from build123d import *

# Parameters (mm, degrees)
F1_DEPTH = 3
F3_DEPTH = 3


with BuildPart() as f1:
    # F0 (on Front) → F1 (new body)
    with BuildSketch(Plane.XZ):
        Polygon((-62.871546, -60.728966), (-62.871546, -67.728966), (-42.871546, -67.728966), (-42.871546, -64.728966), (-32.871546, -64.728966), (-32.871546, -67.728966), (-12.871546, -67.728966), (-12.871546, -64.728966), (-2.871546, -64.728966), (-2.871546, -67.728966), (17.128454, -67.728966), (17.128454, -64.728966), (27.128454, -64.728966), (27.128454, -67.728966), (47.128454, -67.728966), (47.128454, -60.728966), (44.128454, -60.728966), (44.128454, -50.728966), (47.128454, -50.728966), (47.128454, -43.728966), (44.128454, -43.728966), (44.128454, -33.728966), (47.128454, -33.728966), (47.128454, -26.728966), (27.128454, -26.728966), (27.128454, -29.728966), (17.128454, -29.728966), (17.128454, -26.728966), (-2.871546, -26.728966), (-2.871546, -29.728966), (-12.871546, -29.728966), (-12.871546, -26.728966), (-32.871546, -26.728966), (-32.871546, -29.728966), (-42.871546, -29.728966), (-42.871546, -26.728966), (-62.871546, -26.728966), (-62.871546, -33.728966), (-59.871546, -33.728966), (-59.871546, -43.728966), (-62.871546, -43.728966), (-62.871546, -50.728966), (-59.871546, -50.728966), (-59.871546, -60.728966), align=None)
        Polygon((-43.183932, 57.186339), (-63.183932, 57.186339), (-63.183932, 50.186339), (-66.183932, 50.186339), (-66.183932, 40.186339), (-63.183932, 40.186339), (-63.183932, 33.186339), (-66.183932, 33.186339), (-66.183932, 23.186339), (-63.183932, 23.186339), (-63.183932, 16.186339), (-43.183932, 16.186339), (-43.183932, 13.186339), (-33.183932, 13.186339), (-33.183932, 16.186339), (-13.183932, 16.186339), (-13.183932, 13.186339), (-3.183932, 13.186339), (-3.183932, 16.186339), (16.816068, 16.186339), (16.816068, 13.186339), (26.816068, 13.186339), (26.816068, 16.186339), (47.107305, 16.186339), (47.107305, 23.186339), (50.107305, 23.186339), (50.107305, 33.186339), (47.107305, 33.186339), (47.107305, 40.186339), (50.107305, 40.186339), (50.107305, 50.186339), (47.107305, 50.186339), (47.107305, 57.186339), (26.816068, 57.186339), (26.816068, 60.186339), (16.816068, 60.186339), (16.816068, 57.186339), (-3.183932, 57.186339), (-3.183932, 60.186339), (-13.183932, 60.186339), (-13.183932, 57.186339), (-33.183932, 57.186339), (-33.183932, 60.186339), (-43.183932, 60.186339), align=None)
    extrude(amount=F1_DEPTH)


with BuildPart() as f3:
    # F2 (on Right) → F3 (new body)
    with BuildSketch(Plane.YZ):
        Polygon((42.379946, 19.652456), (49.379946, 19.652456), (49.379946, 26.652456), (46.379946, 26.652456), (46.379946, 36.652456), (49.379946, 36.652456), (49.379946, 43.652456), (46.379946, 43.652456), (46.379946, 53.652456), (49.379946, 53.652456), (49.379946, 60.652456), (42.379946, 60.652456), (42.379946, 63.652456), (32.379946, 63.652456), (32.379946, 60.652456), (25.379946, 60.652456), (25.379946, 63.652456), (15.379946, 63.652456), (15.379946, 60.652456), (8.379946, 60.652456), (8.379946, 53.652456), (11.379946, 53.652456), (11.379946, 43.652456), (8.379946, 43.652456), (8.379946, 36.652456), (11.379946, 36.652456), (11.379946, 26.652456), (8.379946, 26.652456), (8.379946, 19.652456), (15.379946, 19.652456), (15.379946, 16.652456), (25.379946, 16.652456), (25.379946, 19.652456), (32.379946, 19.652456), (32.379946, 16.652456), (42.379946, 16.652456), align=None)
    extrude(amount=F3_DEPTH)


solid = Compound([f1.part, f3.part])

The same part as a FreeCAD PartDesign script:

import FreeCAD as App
import Part
import Sketcher
Q = App.Units.Quantity

doc = App.newDocument("Part")
params = doc.addObject("Spreadsheet::Sheet", "Params")
for row, (alias, value) in enumerate([
    ("sketch1_width", "20 mm"),
    ("sketch1_width2", "10 mm"),
    ("sketch1_width3", "3 mm"),
    ("sketch1_height", "7 mm"),
    ("pad1_length", "3 mm"),
    ("sketch2_width", "7 mm"),
    ("sketch2_width2", "3 mm"),
    ("sketch2_width3", "10 mm"),
    ("pad2_length", "3 mm"),
], start=1):
    params.set(f"A{row}", alias)
    params.set(f"B{row}", "=" + value)
    params.setAlias(f"B{row}", alias)

body = doc.addObject("PartDesign::Body", "Body")
body.AllowCompound = True

# Sketch on XZ plane
sketch1 = body.newObject("Sketcher::SketchObject", "Sketch")
sketch1.AttachmentSupport = (doc.getObject("XZ_Plane"), [""])
sketch1.MapMode = "FlatFace"
sketch1.addGeometry(Part.LineSegment(App.Vector(-62.9, -60.7, 0), App.Vector(-62.9, -67.7, 0)), False)
sketch1.addGeometry(Part.LineSegment(App.Vector(-62.9, -67.7, 0), App.Vector(-42.9, -67.7, 0)), False)
sketch1.addGeometry(Part.LineSegment(App.Vector(-42.9, -67.7, 0), App.Vector(-42.9, -64.7, 0)), False)
sketch1.addGeometry(Part.LineSegment(App.Vector(-42.9, -64.7, 0), App.Vector(-32.9, -64.7, 0)), False)
sketch1.addGeometry(Part.LineSegment(App.Vector(-32.9, -64.7, 0), App.Vector(-32.9, -67.7, 0)), False)
sketch1.addGeometry(Part.LineSegment(App.Vector(-32.9, -67.7, 0), App.Vector(-12.9, -67.7, 0)), False)
sketch1.addGeometry(Part.LineSegment(App.Vector(-12.9, -67.7, 0), App.Vector(-12.9, -64.7, 0)), False)
sketch1.addGeometry(Part.LineSegment(App.Vector(-12.9, -64.7, 0), App.Vector(-2.9, -64.7, 0)), False)
sketch1.addGeometry(Part.LineSegment(App.Vector(-2.9, -64.7, 0), App.Vector(-2.9, -67.7, 0)), False)
sketch1.addGeometry(Part.LineSegment(App.Vector(-2.9, -67.7, 0), App.Vector(17.1, -67.7, 0)), False)
sketch1.addGeometry(Part.LineSegment(App.Vector(17.1, -67.7, 0), App.Vector(17.1, -64.7, 0)), False)
sketch1.addGeometry(Part.LineSegment(App.Vector(17.1, -64.7, 0), App.Vector(27.1, -64.7, 0)), False)
sketch1.addGeometry(Part.LineSegment(App.Vector(27.1, -64.7, 0), App.Vector(27.1, -67.7, 0)), False)
sketch1.addGeometry(Part.LineSegment(App.Vector(27.1, -67.7, 0), App.Vector(47.1, -67.7, 0)), False)
sketch1.addGeometry(Part.LineSegment(App.Vector(47.1, -67.7, 0), App.Vector(47.1, -60.7, 0)), False)
sketch1.addGeometry(Part.LineSegment(App.Vector(47.1, -60.7, 0), App.Vector(44.1, -60.7, 0)), False)
sketch1.addGeometry(Part.LineSegment(App.Vector(44.1, -60.7, 0), App.Vector(44.1, -50.7, 0)), False)
sketch1.addGeometry(Part.LineSegment(App.Vector(44.1, -50.7, 0), App.Vector(47.1, -50.7, 0)), False)
sketch1.addGeometry(Part.LineSegment(App.Vector(47.1, -50.7, 0), App.Vector(47.1, -43.7, 0)), False)
sketch1.addGeometry(Part.LineSegment(App.Vector(47.1, -43.7, 0), App.Vector(44.1, -43.7, 0)), False)
sketch1.addGeometry(Part.LineSegment(App.Vector(44.1, -43.7, 0), App.Vector(44.1, -33.7, 0)), False)
sketch1.addGeometry(Part.LineSegment(App.Vector(44.1, -33.7, 0), App.Vector(47.1, -33.7, 0)), False)
sketch1.addGeometry(Part.LineSegment(App.Vector(47.1, -33.7, 0), App.Vector(47.1, -26.7, 0)), False)
sketch1.addGeometry(Part.LineSegment(App.Vector(47.1, -26.7, 0), App.Vector(27.1, -26.7, 0)), False)
sketch1.addGeometry(Part.LineSegment(App.Vector(27.1, -26.7, 0), App.Vector(27.1, -29.7, 0)), False)
sketch1.addGeometry(Part.LineSegment(App.Vector(27.1, -29.7, 0), App.Vector(17.1, -29.7, 0)), False)
sketch1.addGeometry(Part.LineSegment(App.Vector(17.1, -29.7, 0), App.Vector(17.1, -26.7, 0)), False)
sketch1.addGeometry(Part.LineSegment(App.Vector(17.1, -26.7, 0), App.Vector(-2.9, -26.7, 0)), False)
sketch1.addGeometry(Part.LineSegment(App.Vector(-2.9, -26.7, 0), App.Vector(-2.9, -29.7, 0)), False)
sketch1.addGeometry(Part.LineSegment(App.Vector(-2.9, -29.7, 0), App.Vector(-12.9, -29.7, 0)), False)
sketch1.addGeometry(Part.LineSegment(App.Vector(-12.9, -29.7, 0), App.Vector(-12.9, -26.7, 0)), False)
sketch1.addGeometry(Part.LineSegment(App.Vector(-12.9, -26.7, 0), App.Vector(-32.9, -26.7, 0)), False)
sketch1.addGeometry(Part.LineSegment(App.Vector(-32.9, -26.7, 0), App.Vector(-32.9, -29.7, 0)), False)
sketch1.addGeometry(Part.LineSegment(App.Vector(-32.9, -29.7, 0), App.Vector(-42.9, -29.7, 0)), False)
sketch1.addGeometry(Part.LineSegment(App.Vector(-42.9, -29.7, 0), App.Vector(-42.9, -26.7, 0)), False)
sketch1.addGeometry(Part.LineSegment(App.Vector(-42.9, -26.7, 0), App.Vector(-62.9, -26.7, 0)), False)
sketch1.addGeometry(Part.LineSegment(App.Vector(-62.9, -26.7, 0), App.Vector(-62.9, -33.7, 0)), False)
sketch1.addGeometry(Part.LineSegment(App.Vector(-62.9, -33.7, 0), App.Vector(-59.9, -33.7, 0)), False)
sketch1.addGeometry(Part.LineSegment(App.Vector(-59.9, -33.7, 0), App.Vector(-59.9, -43.7, 0)), False)
sketch1.addGeometry(Part.LineSegment(App.Vector(-59.9, -43.7, 0), App.Vector(-62.9, -43.7, 0)), False)
sketch1.addGeometry(Part.LineSegment(App.Vector(-62.9, -43.7, 0), App.Vector(-62.9, -50.7, 0)), False)
sketch1.addGeometry(Part.LineSegment(App.Vector(-62.9, -50.7, 0), App.Vector(-59.9, -50.7, 0)), False)
sketch1.addGeometry(Part.LineSegment(App.Vector(-59.9, -50.7, 0), App.Vector(-59.9, -60.7, 0)), False)
sketch1.addGeometry(Part.LineSegment(App.Vector(-59.9, -60.7, 0), App.Vector(-62.9, -60.7, 0)), False)
sketch1.addGeometry(Part.LineSegment(App.Vector(-43.2, 57.2, 0), App.Vector(-63.2, 57.2, 0)), False)
sketch1.addGeometry(Part.LineSegment(App.Vector(-63.2, 57.2, 0), App.Vector(-63.2, 50.2, 0)), False)
sketch1.addGeometry(Part.LineSegment(App.Vector(-63.2, 50.2, 0), App.Vector(-66.2, 50.2, 0)), False)
sketch1.addGeometry(Part.LineSegment(App.Vector(-66.2, 50.2, 0), App.Vector(-66.2, 40.2, 0)), False)
sketch1.addGeometry(Part.LineSegment(App.Vector(-66.2, 40.2, 0), App.Vector(-63.2, 40.2, 0)), False)
sketch1.addGeometry(Part.LineSegment(App.Vector(-63.2, 40.2, 0), App.Vector(-63.2, 33.2, 0)), False)
sketch1.addGeometry(Part.LineSegment(App.Vector(-63.2, 33.2, 0), App.Vector(-66.2, 33.2, 0)), False)
sketch1.addGeometry(Part.LineSegment(App.Vector(-66.2, 33.2, 0), App.Vector(-66.2, 23.2, 0)), False)
sketch1.addGeometry(Part.LineSegment(App.Vector(-66.2, 23.2, 0), App.Vector(-63.2, 23.2, 0)), False)
sketch1.addGeometry(Part.LineSegment(App.Vector(-63.2, 23.2, 0), App.Vector(-63.2, 16.2, 0)), False)
sketch1.addGeometry(Part.LineSegment(App.Vector(-63.2, 16.2, 0), App.Vector(-43.2, 16.2, 0)), False)
sketch1.addGeometry(Part.LineSegment(App.Vector(-43.2, 16.2, 0), App.Vector(-43.2, 13.2, 0)), False)
sketch1.addGeometry(Part.LineSegment(App.Vector(-43.2, 13.2, 0), App.Vector(-33.2, 13.2, 0)), False)
sketch1.addGeometry(Part.LineSegment(App.Vector(-33.2, 13.2, 0), App.Vector(-33.2, 16.2, 0)), False)
sketch1.addGeometry(Part.LineSegment(App.Vector(-33.2, 16.2, 0), App.Vector(-13.2, 16.2, 0)), False)
sketch1.addGeometry(Part.LineSegment(App.Vector(-13.2, 16.2, 0), App.Vector(-13.2, 13.2, 0)), False)
sketch1.addGeometry(Part.LineSegment(App.Vector(-13.2, 13.2, 0), App.Vector(-3.2, 13.2, 0)), False)
sketch1.addGeometry(Part.LineSegment(App.Vector(-3.2, 13.2, 0), App.Vector(-3.2, 16.2, 0)), False)
sketch1.addGeometry(Part.LineSegment(App.Vector(-3.2, 16.2, 0), App.Vector(16.8, 16.2, 0)), False)
sketch1.addGeometry(Part.LineSegment(App.Vector(16.8, 16.2, 0), App.Vector(16.8, 13.2, 0)), False)
sketch1.addGeometry(Part.LineSegment(App.Vector(16.8, 13.2, 0), App.Vector(26.8, 13.2, 0)), False)
sketch1.addGeometry(Part.LineSegment(App.Vector(26.8, 13.2, 0), App.Vector(26.8, 16.2, 0)), False)
sketch1.addGeometry(Part.LineSegment(App.Vector(26.8, 16.2, 0), App.Vector(47.1, 16.2, 0)), False)
sketch1.addGeometry(Part.LineSegment(App.Vector(47.1, 16.2, 0), App.Vector(47.1, 23.2, 0)), False)
sketch1.addGeometry(Part.LineSegment(App.Vector(47.1, 23.2, 0), App.Vector(50.1, 23.2, 0)), False)
sketch1.addGeometry(Part.LineSegment(App.Vector(50.1, 23.2, 0), App.Vector(50.1, 33.2, 0)), False)
sketch1.addGeometry(Part.LineSegment(App.Vector(50.1, 33.2, 0), App.Vector(47.1, 33.2, 0)), False)
sketch1.addGeometry(Part.LineSegment(App.Vector(47.1, 33.2, 0), App.Vector(47.1, 40.2, 0)), False)
sketch1.addGeometry(Part.LineSegment(App.Vector(47.1, 40.2, 0), App.Vector(50.1, 40.2, 0)), False)
sketch1.addGeometry(Part.LineSegment(App.Vector(50.1, 40.2, 0), App.Vector(50.1, 50.2, 0)), False)
sketch1.addGeometry(Part.LineSegment(App.Vector(50.1, 50.2, 0), App.Vector(47.1, 50.2, 0)), False)
sketch1.addGeometry(Part.LineSegment(App.Vector(47.1, 50.2, 0), App.Vector(47.1, 57.2, 0)), False)
sketch1.addGeometry(Part.LineSegment(App.Vector(47.1, 57.2, 0), App.Vector(26.8, 57.2, 0)), False)
sketch1.addGeometry(Part.LineSegment(App.Vector(26.8, 57.2, 0), App.Vector(26.8, 60.2, 0)), False)
sketch1.addGeometry(Part.LineSegment(App.Vector(26.8, 60.2, 0), App.Vector(16.8, 60.2, 0)), False)
sketch1.addGeometry(Part.LineSegment(App.Vector(16.8, 60.2, 0), App.Vector(16.8, 57.2, 0)), False)
sketch1.addGeometry(Part.LineSegment(App.Vector(16.8, 57.2, 0), App.Vector(-3.2, 57.2, 0)), False)
sketch1.addGeometry(Part.LineSegment(App.Vector(-3.2, 57.2, 0), App.Vector(-3.2, 60.2, 0)), False)
sketch1.addGeometry(Part.LineSegment(App.Vector(-3.2, 60.2, 0), App.Vector(-13.2, 60.2, 0)), False)
sketch1.addGeometry(Part.LineSegment(App.Vector(-13.2, 60.2, 0), App.Vector(-13.2, 57.2, 0)), False)
sketch1.addGeometry(Part.LineSegment(App.Vector(-13.2, 57.2, 0), App.Vector(-33.2, 57.2, 0)), False)
sketch1.addGeometry(Part.LineSegment(App.Vector(-33.2, 57.2, 0), App.Vector(-33.2, 60.2, 0)), False)
sketch1.addGeometry(Part.LineSegment(App.Vector(-33.2, 60.2, 0), App.Vector(-43.2, 60.2, 0)), False)
sketch1.addGeometry(Part.LineSegment(App.Vector(-43.2, 60.2, 0), App.Vector(-43.2, 57.2, 0)), False)
sketch1.addConstraint(Sketcher.Constraint("Coincident", 0, 2, 1, 1))
sketch1.addConstraint(Sketcher.Constraint("Coincident", 1, 2, 2, 1))
sketch1.addConstraint(Sketcher.Constraint("Coincident", 2, 2, 3, 1))
sketch1.addConstraint(Sketcher.Constraint("Coincident", 3, 2, 4, 1))
sketch1.addConstraint(Sketcher.Constraint("Coincident", 4, 2, 5, 1))
sketch1.addConstraint(Sketcher.Constraint("Coincident", 5, 2, 6, 1))
sketch1.addConstraint(Sketcher.Constraint("Coincident", 6, 2, 7, 1))
sketch1.addConstraint(Sketcher.Constraint("Coincident", 7, 2, 8, 1))
sketch1.addConstraint(Sketcher.Constraint("Coincident", 8, 2, 9, 1))
sketch1.addConstraint(Sketcher.Constraint("Coincident", 9, 2, 10, 1))
sketch1.addConstraint(Sketcher.Constraint("Coincident", 10, 2, 11, 1))
sketch1.addConstraint(Sketcher.Constraint("Coincident", 11, 2, 12, 1))
sketch1.addConstraint(Sketcher.Constraint("Coincident", 12, 2, 13, 1))
sketch1.addConstraint(Sketcher.Constraint("Coincident", 13, 2, 14, 1))
sketch1.addConstraint(Sketcher.Constraint("Coincident", 14, 2, 15, 1))
sketch1.addConstraint(Sketcher.Constraint("Coincident", 15, 2, 16, 1))
sketch1.addConstraint(Sketcher.Constraint("Coincident", 16, 2, 17, 1))
sketch1.addConstraint(Sketcher.Constraint("Coincident", 17, 2, 18, 1))
sketch1.addConstraint(Sketcher.Constraint("Coincident", 18, 2, 19, 1))
sketch1.addConstraint(Sketcher.Constraint("Coincident", 19, 2, 20, 1))
sketch1.addConstraint(Sketcher.Constraint("Coincident", 20, 2, 21, 1))
sketch1.addConstraint(Sketcher.Constraint("Coincident", 21, 2, 22, 1))
sketch1.addConstraint(Sketcher.Constraint("Coincident", 22, 2, 23, 1))
sketch1.addConstraint(Sketcher.Constraint("Coincident", 23, 2, 24, 1))
sketch1.addConstraint(Sketcher.Constraint("Coincident", 24, 2, 25, 1))
sketch1.addConstraint(Sketcher.Constraint("Coincident", 25, 2, 26, 1))
sketch1.addConstraint(Sketcher.Constraint("Coincident", 26, 2, 27, 1))
sketch1.addConstraint(Sketcher.Constraint("Coincident", 27, 2, 28, 1))
sketch1.addConstraint(Sketcher.Constraint("Coincident", 28, 2, 29, 1))
sketch1.addConstraint(Sketcher.Constraint("Coincident", 29, 2, 30, 1))
sketch1.addConstraint(Sketcher.Constraint("Coincident", 30, 2, 31, 1))
sketch1.addConstraint(Sketcher.Constraint("Coincident", 31, 2, 32, 1))
sketch1.addConstraint(Sketcher.Constraint("Coincident", 32, 2, 33, 1))
sketch1.addConstraint(Sketcher.Constraint("Coincident", 33, 2, 34, 1))
sketch1.addConstraint(Sketcher.Constraint("Coincident", 34, 2, 35, 1))
sketch1.addConstraint(Sketcher.Constraint("Coincident", 35, 2, 36, 1))
sketch1.addConstraint(Sketcher.Constraint("Coincident", 36, 2, 37, 1))
sketch1.addConstraint(Sketcher.Constraint("Coincident", 37, 2, 38, 1))
sketch1.addConstraint(Sketcher.Constraint("Coincident", 38, 2, 39, 1))
sketch1.addConstraint(Sketcher.Constraint("Coincident", 39, 2, 40, 1))
sketch1.addConstraint(Sketcher.Constraint("Coincident", 40, 2, 41, 1))
sketch1.addConstraint(Sketcher.Constraint("Coincident", 41, 2, 42, 1))
sketch1.addConstraint(Sketcher.Constraint("Coincident", 42, 2, 43, 1))
sketch1.addConstraint(Sketcher.Constraint("Coincident", 43, 2, 0, 1))
sketch1.addConstraint(Sketcher.Constraint("Coincident", 44, 2, 45, 1))
sketch1.addConstraint(Sketcher.Constraint("Coincident", 45, 2, 46, 1))
sketch1.addConstraint(Sketcher.Constraint("Coincident", 46, 2, 47, 1))
sketch1.addConstraint(Sketcher.Constraint("Coincident", 47, 2, 48, 1))
sketch1.addConstraint(Sketcher.Constraint("Coincident", 48, 2, 49, 1))
sketch1.addConstraint(Sketcher.Constraint("Coincident", 49, 2, 50, 1))
sketch1.addConstraint(Sketcher.Constraint("Coincident", 50, 2, 51, 1))
sketch1.addConstraint(Sketcher.Constraint("Coincident", 51, 2, 52, 1))
sketch1.addConstraint(Sketcher.Constraint("Coincident", 52, 2, 53, 1))
sketch1.addConstraint(Sketcher.Constraint("Coincident", 53, 2, 54, 1))
sketch1.addConstraint(Sketcher.Constraint("Coincident", 54, 2, 55, 1))
sketch1.addConstraint(Sketcher.Constraint("Coincident", 55, 2, 56, 1))
sketch1.addConstraint(Sketcher.Constraint("Coincident", 56, 2, 57, 1))
sketch1.addConstraint(Sketcher.Constraint("Coincident", 57, 2, 58, 1))
sketch1.addConstraint(Sketcher.Constraint("Coincident", 58, 2, 59, 1))
sketch1.addConstraint(Sketcher.Constraint("Coincident", 59, 2, 60, 1))
sketch1.addConstraint(Sketcher.Constraint("Coincident", 60, 2, 61, 1))
sketch1.addConstraint(Sketcher.Constraint("Coincident", 61, 2, 62, 1))
sketch1.addConstraint(Sketcher.Constraint("Coincident", 62, 2, 63, 1))
sketch1.addConstraint(Sketcher.Constraint("Coincident", 63, 2, 64, 1))
sketch1.addConstraint(Sketcher.Constraint("Coincident", 64, 2, 65, 1))
sketch1.addConstraint(Sketcher.Constraint("Coincident", 65, 2, 66, 1))
sketch1.addConstraint(Sketcher.Constraint("Coincident", 66, 2, 67, 1))
sketch1.addConstraint(Sketcher.Constraint("Coincident", 67, 2, 68, 1))
sketch1.addConstraint(Sketcher.Constraint("Coincident", 68, 2, 69, 1))
sketch1.addConstraint(Sketcher.Constraint("Coincident", 69, 2, 70, 1))
sketch1.addConstraint(Sketcher.Constraint("Coincident", 70, 2, 71, 1))
sketch1.addConstraint(Sketcher.Constraint("Coincident", 71, 2, 72, 1))
sketch1.addConstraint(Sketcher.Constraint("Coincident", 72, 2, 73, 1))
sketch1.addConstraint(Sketcher.Constraint("Coincident", 73, 2, 74, 1))
sketch1.addConstraint(Sketcher.Constraint("Coincident", 74, 2, 75, 1))
sketch1.addConstraint(Sketcher.Constraint("Coincident", 75, 2, 76, 1))
sketch1.addConstraint(Sketcher.Constraint("Coincident", 76, 2, 77, 1))
sketch1.addConstraint(Sketcher.Constraint("Coincident", 77, 2, 78, 1))
sketch1.addConstraint(Sketcher.Constraint("Coincident", 78, 2, 79, 1))
sketch1.addConstraint(Sketcher.Constraint("Coincident", 79, 2, 80, 1))
sketch1.addConstraint(Sketcher.Constraint("Coincident", 80, 2, 81, 1))
sketch1.addConstraint(Sketcher.Constraint("Coincident", 81, 2, 82, 1))
sketch1.addConstraint(Sketcher.Constraint("Coincident", 82, 2, 83, 1))
sketch1.addConstraint(Sketcher.Constraint("Coincident", 83, 2, 84, 1))
sketch1.addConstraint(Sketcher.Constraint("Coincident", 84, 2, 85, 1))
sketch1.addConstraint(Sketcher.Constraint("Coincident", 85, 2, 86, 1))
sketch1.addConstraint(Sketcher.Constraint("Coincident", 86, 2, 87, 1))
sketch1.addConstraint(Sketcher.Constraint("Coincident", 87, 2, 44, 1))
sketch1.addConstraint(Sketcher.Constraint("Vertical", 0))
sketch1.addConstraint(Sketcher.Constraint("Horizontal", 1))
sketch1.addConstraint(Sketcher.Constraint("Vertical", 2))
sketch1.addConstraint(Sketcher.Constraint("Horizontal", 3))
sketch1.addConstraint(Sketcher.Constraint("Vertical", 4))
sketch1.addConstraint(Sketcher.Constraint("Horizontal", 5))
sketch1.addConstraint(Sketcher.Constraint("Vertical", 6))
sketch1.addConstraint(Sketcher.Constraint("Horizontal", 7))
sketch1.addConstraint(Sketcher.Constraint("Vertical", 8))
sketch1.addConstraint(Sketcher.Constraint("Horizontal", 9))
sketch1.addConstraint(Sketcher.Constraint("Vertical", 10))
sketch1.addConstraint(Sketcher.Constraint("Horizontal", 11))
sketch1.addConstraint(Sketcher.Constraint("Vertical", 12))
sketch1.addConstraint(Sketcher.Constraint("Horizontal", 13))
sketch1.addConstraint(Sketcher.Constraint("Vertical", 14))
sketch1.addConstraint(Sketcher.Constraint("Horizontal", 15))
sketch1.addConstraint(Sketcher.Constraint("Vertical", 16))
sketch1.addConstraint(Sketcher.Constraint("Horizontal", 17))
sketch1.addConstraint(Sketcher.Constraint("Vertical", 18))
sketch1.addConstraint(Sketcher.Constraint("Horizontal", 19))
sketch1.addConstraint(Sketcher.Constraint("Vertical", 20))
sketch1.addConstraint(Sketcher.Constraint("Horizontal", 21))
sketch1.addConstraint(Sketcher.Constraint("Vertical", 22))
sketch1.addConstraint(Sketcher.Constraint("Horizontal", 23))
sketch1.addConstraint(Sketcher.Constraint("Vertical", 24))
sketch1.addConstraint(Sketcher.Constraint("Horizontal", 25))
sketch1.addConstraint(Sketcher.Constraint("Vertical", 26))
sketch1.addConstraint(Sketcher.Constraint("Horizontal", 27))
sketch1.addConstraint(Sketcher.Constraint("Vertical", 28))
sketch1.addConstraint(Sketcher.Constraint("Horizontal", 29))
sketch1.addConstraint(Sketcher.Constraint("Vertical", 30))
sketch1.addConstraint(Sketcher.Constraint("Horizontal", 31))
sketch1.addConstraint(Sketcher.Constraint("Vertical", 32))
sketch1.addConstraint(Sketcher.Constraint("Horizontal", 33))
sketch1.addConstraint(Sketcher.Constraint("Vertical", 34))
sketch1.addConstraint(Sketcher.Constraint("Horizontal", 35))
sketch1.addConstraint(Sketcher.Constraint("Vertical", 36))
sketch1.addConstraint(Sketcher.Constraint("Horizontal", 37))
sketch1.addConstraint(Sketcher.Constraint("Vertical", 38))
sketch1.addConstraint(Sketcher.Constraint("Horizontal", 39))
sketch1.addConstraint(Sketcher.Constraint("Vertical", 40))
sketch1.addConstraint(Sketcher.Constraint("Horizontal", 41))
sketch1.addConstraint(Sketcher.Constraint("Vertical", 42))
sketch1.addConstraint(Sketcher.Constraint("Horizontal", 43))
sketch1.addConstraint(Sketcher.Constraint("Horizontal", 44))
sketch1.addConstraint(Sketcher.Constraint("Vertical", 45))
sketch1.addConstraint(Sketcher.Constraint("Horizontal", 46))
sketch1.addConstraint(Sketcher.Constraint("Vertical", 47))
sketch1.addConstraint(Sketcher.Constraint("Horizontal", 48))
sketch1.addConstraint(Sketcher.Constraint("Vertical", 49))
sketch1.addConstraint(Sketcher.Constraint("Horizontal", 50))
sketch1.addConstraint(Sketcher.Constraint("Vertical", 51))
sketch1.addConstraint(Sketcher.Constraint("Horizontal", 52))
sketch1.addConstraint(Sketcher.Constraint("Vertical", 53))
sketch1.addConstraint(Sketcher.Constraint("Horizontal", 54))
sketch1.addConstraint(Sketcher.Constraint("Vertical", 55))
sketch1.addConstraint(Sketcher.Constraint("Horizontal", 56))
sketch1.addConstraint(Sketcher.Constraint("Vertical", 57))
sketch1.addConstraint(Sketcher.Constraint("Horizontal", 58))
sketch1.addConstraint(Sketcher.Constraint("Vertical", 59))
sketch1.addConstraint(Sketcher.Constraint("Horizontal", 60))
sketch1.addConstraint(Sketcher.Constraint("Vertical", 61))
sketch1.addConstraint(Sketcher.Constraint("Horizontal", 62))
sketch1.addConstraint(Sketcher.Constraint("Vertical", 63))
sketch1.addConstraint(Sketcher.Constraint("Horizontal", 64))
sketch1.addConstraint(Sketcher.Constraint("Vertical", 65))
sketch1.addConstraint(Sketcher.Constraint("Horizontal", 66))
sketch1.addConstraint(Sketcher.Constraint("Vertical", 67))
sketch1.addConstraint(Sketcher.Constraint("Horizontal", 68))
sketch1.addConstraint(Sketcher.Constraint("Vertical", 69))
sketch1.addConstraint(Sketcher.Constraint("Horizontal", 70))
sketch1.addConstraint(Sketcher.Constraint("Vertical", 71))
sketch1.addConstraint(Sketcher.Constraint("Horizontal", 72))
sketch1.addConstraint(Sketcher.Constraint("Vertical", 73))
sketch1.addConstraint(Sketcher.Constraint("Horizontal", 74))
sketch1.addConstraint(Sketcher.Constraint("Vertical", 75))
sketch1.addConstraint(Sketcher.Constraint("Horizontal", 76))
sketch1.addConstraint(Sketcher.Constraint("Vertical", 77))
sketch1.addConstraint(Sketcher.Constraint("Horizontal", 78))
sketch1.addConstraint(Sketcher.Constraint("Vertical", 79))
sketch1.addConstraint(Sketcher.Constraint("Horizontal", 80))
sketch1.addConstraint(Sketcher.Constraint("Vertical", 81))
sketch1.addConstraint(Sketcher.Constraint("Horizontal", 82))
sketch1.addConstraint(Sketcher.Constraint("Vertical", 83))
sketch1.addConstraint(Sketcher.Constraint("Horizontal", 84))
sketch1.addConstraint(Sketcher.Constraint("Vertical", 85))
sketch1.addConstraint(Sketcher.Constraint("Horizontal", 86))
sketch1.addConstraint(Sketcher.Constraint("Vertical", 87))
sketch1.addConstraint(Sketcher.Constraint("Horizontal", 1, 2, 4, 2))
sketch1.addConstraint(Sketcher.Constraint("Horizontal", 3, 2, 6, 2))
sketch1.addConstraint(Sketcher.Constraint("Horizontal", 5, 2, 8, 2))
sketch1.addConstraint(Sketcher.Constraint("Horizontal", 7, 2, 10, 2))
sketch1.addConstraint(Sketcher.Constraint("Horizontal", 9, 2, 12, 2))
sketch1.addConstraint(Sketcher.Constraint("Horizontal", 23, 2, 26, 2))
sketch1.addConstraint(Sketcher.Constraint("Horizontal", 25, 2, 28, 2))
sketch1.addConstraint(Sketcher.Constraint("Horizontal", 27, 2, 30, 2))
sketch1.addConstraint(Sketcher.Constraint("Horizontal", 29, 2, 32, 2))
sketch1.addConstraint(Sketcher.Constraint("Horizontal", 31, 2, 34, 2))
sketch1.addConstraint(Sketcher.Constraint("Horizontal", 21, 2, 36, 2))
sketch1.addConstraint(Sketcher.Constraint("Horizontal", 19, 2, 38, 2))
sketch1.addConstraint(Sketcher.Constraint("Horizontal", 17, 2, 40, 2))
sketch1.addConstraint(Sketcher.Constraint("Horizontal", 15, 2, 42, 2))
sketch1.addConstraint(Sketcher.Constraint("Horizontal", 54, 2, 57, 2))
sketch1.addConstraint(Sketcher.Constraint("Horizontal", 56, 2, 59, 2))
sketch1.addConstraint(Sketcher.Constraint("Horizontal", 58, 2, 61, 2))
sketch1.addConstraint(Sketcher.Constraint("Horizontal", 60, 2, 63, 2))
sketch1.addConstraint(Sketcher.Constraint("Horizontal", 62, 2, 65, 2))
sketch1.addConstraint(Sketcher.Constraint("Horizontal", 52, 2, 67, 2))
sketch1.addConstraint(Sketcher.Constraint("Horizontal", 50, 2, 69, 2))
sketch1.addConstraint(Sketcher.Constraint("Horizontal", 48, 2, 71, 2))
sketch1.addConstraint(Sketcher.Constraint("Horizontal", 46, 2, 73, 2))
sketch1.addConstraint(Sketcher.Constraint("Horizontal", 44, 2, 75, 2))
sketch1.addConstraint(Sketcher.Constraint("Horizontal", 76, 2, 79, 2))
sketch1.addConstraint(Sketcher.Constraint("Horizontal", 78, 2, 81, 2))
sketch1.addConstraint(Sketcher.Constraint("Horizontal", 80, 2, 83, 2))
sketch1.addConstraint(Sketcher.Constraint("Horizontal", 82, 2, 85, 2))
sketch1.addConstraint(Sketcher.Constraint("Vertical", 14, 2, 17, 2))
sketch1.addConstraint(Sketcher.Constraint("Vertical", 16, 2, 19, 2))
sketch1.addConstraint(Sketcher.Constraint("Vertical", 18, 2, 21, 2))
sketch1.addConstraint(Sketcher.Constraint("Vertical", 12, 2, 23, 2))
sketch1.addConstraint(Sketcher.Constraint("Vertical", 10, 2, 25, 2))
sketch1.addConstraint(Sketcher.Constraint("Vertical", 8, 2, 27, 2))
sketch1.addConstraint(Sketcher.Constraint("Vertical", 6, 2, 29, 2))
sketch1.addConstraint(Sketcher.Constraint("Vertical", 4, 2, 31, 2))
sketch1.addConstraint(Sketcher.Constraint("Vertical", 2, 2, 33, 2))
sketch1.addConstraint(Sketcher.Constraint("Vertical", 0, 2, 35, 2))
sketch1.addConstraint(Sketcher.Constraint("Vertical", 36, 2, 39, 2))
sketch1.addConstraint(Sketcher.Constraint("Vertical", 38, 2, 41, 2))
sketch1.addConstraint(Sketcher.Constraint("Vertical", 45, 2, 48, 2))
sketch1.addConstraint(Sketcher.Constraint("Vertical", 47, 2, 50, 2))
sketch1.addConstraint(Sketcher.Constraint("Vertical", 49, 2, 52, 2))
sketch1.addConstraint(Sketcher.Constraint("Vertical", 67, 2, 70, 2))
sketch1.addConstraint(Sketcher.Constraint("Vertical", 69, 2, 72, 2))
sketch1.addConstraint(Sketcher.Constraint("Vertical", 71, 2, 74, 2))
sketch1.addConstraint(Sketcher.Constraint("Vertical", 65, 2, 76, 2))
sketch1.addConstraint(Sketcher.Constraint("Vertical", 63, 2, 78, 2))
sketch1.addConstraint(Sketcher.Constraint("Vertical", 61, 2, 80, 2))
sketch1.addConstraint(Sketcher.Constraint("Vertical", 59, 2, 82, 2))
sketch1.addConstraint(Sketcher.Constraint("Vertical", 57, 2, 84, 2))
sketch1.addConstraint(Sketcher.Constraint("Vertical", 55, 2, 86, 2))
sketch1.addConstraint(Sketcher.Constraint("Equal", 1, 5))
sketch1.addConstraint(Sketcher.Constraint("Equal", 3, 7))
sketch1.addConstraint(Sketcher.Constraint("Equal", 5, 9))
sketch1.addConstraint(Sketcher.Constraint("Equal", 7, 11))
sketch1.addConstraint(Sketcher.Constraint("Equal", 9, 13))
sketch1.addConstraint(Sketcher.Constraint("Equal", 21, 37))
sketch1.addConstraint(Sketcher.Constraint("Equal", 35, 44))
sketch1.addConstraint(Sketcher.Constraint("Equal", 43, 46))
sketch1.addConstraint(Sketcher.Constraint("Equal", 33, 56))
sketch1.addConstraint(Sketcher.Constraint("Equal", 54, 58))
sketch1.addConstraint(Sketcher.Constraint("Equal", 56, 60))
sketch1.addConstraint(Sketcher.Constraint("Equal", 58, 62))
sketch1.addConstraint(Sketcher.Constraint("Equal", 60, 64))
sketch1.addConstraint(Sketcher.Constraint("Equal", 52, 68))
sketch1.addConstraint(Sketcher.Constraint("Equal", 74, 2))
sketch1.addConstraint(Sketcher.Constraint("Equal", 86, 16))
sketch1.addConstraint(Sketcher.Constraint("Equal", 14, 18))
sketch1.addConstraint(Sketcher.Constraint("Equal", 16, 20))
sketch1.addConstraint(Sketcher.Constraint("Equal", 18, 22))
sketch1.addConstraint(Sketcher.Constraint("Equal", 12, 24))
sketch1.addConstraint(Sketcher.Constraint("Equal", 40, 45))
sketch1.addConstraint(Sketcher.Constraint("Equal", 42, 47))
sketch1.addConstraint(Sketcher.Constraint("Equal", 45, 49))
sketch1.addConstraint(Sketcher.Constraint("Equal", 47, 51))
sketch1.addConstraint(Sketcher.Constraint("Equal", 49, 53))
sketch1.addConstraint(Sketcher.Constraint("Equal", 34, 55))
sketch1.addConstraint(Sketcher.Constraint("Equal", 65, 77))
sketch1.addConstraint(Sketcher.Constraint("DistanceX", 1, 1, 1, 2, Q("20 mm")))
sketch1.addConstraint(Sketcher.Constraint("DistanceX", 3, 1, 3, 2, Q("10 mm")))
sketch1.addConstraint(Sketcher.Constraint("DistanceX", 15, 2, 15, 1, Q("3 mm")))
sketch1.addConstraint(Sketcher.Constraint("DistanceY", 0, 2, 0, 1, Q("7 mm")))
sketch1.addConstraint(Sketcher.Constraint("DistanceX", 66, 1, 66, 2, Q("20.291237 mm")))
sketch1.addConstraint(Sketcher.Constraint("DistanceY", -1, 1, 44, 2, Q("57.186339 mm")))
sketch1.addConstraint(Sketcher.Constraint("DistanceX", 46, 2, -1, 1, Q("66.183932 mm")))
sketch1.addConstraint(Sketcher.Constraint("DistanceX", 0, 2, -1, 1, Q("62.871546 mm")))
sketch1.addConstraint(Sketcher.Constraint("DistanceY", 0, 2, -1, 1, Q("67.728966 mm")))
sketch1.setExpression("Constraints[255]", "Params.sketch1_width")
sketch1.setExpression("Constraints[256]", "Params.sketch1_width2")
sketch1.setExpression("Constraints[257]", "Params.sketch1_width3")
sketch1.setExpression("Constraints[258]", "Params.sketch1_height")
pad1 = body.newObject("PartDesign::Pad", "Pad")
pad1.Profile = sketch1
pad1.setExpression("Length", "Params.pad1_length")
body2 = doc.addObject("PartDesign::Body", "Body001")

# Sketch on YZ plane
sketch2 = body2.newObject("Sketcher::SketchObject", "Sketch001")
sketch2.AttachmentSupport = (doc.getObject("YZ_Plane001"), [""])
sketch2.MapMode = "FlatFace"
sketch2.addGeometry(Part.LineSegment(App.Vector(42.4, 19.7, 0), App.Vector(49.4, 19.7, 0)), False)
sketch2.addGeometry(Part.LineSegment(App.Vector(49.4, 19.7, 0), App.Vector(49.4, 26.7, 0)), False)
sketch2.addGeometry(Part.LineSegment(App.Vector(49.4, 26.7, 0), App.Vector(46.4, 26.7, 0)), False)
sketch2.addGeometry(Part.LineSegment(App.Vector(46.4, 26.7, 0), App.Vector(46.4, 36.7, 0)), False)
sketch2.addGeometry(Part.LineSegment(App.Vector(46.4, 36.7, 0), App.Vector(49.4, 36.7, 0)), False)
sketch2.addGeometry(Part.LineSegment(App.Vector(49.4, 36.7, 0), App.Vector(49.4, 43.7, 0)), False)
sketch2.addGeometry(Part.LineSegment(App.Vector(49.4, 43.7, 0), App.Vector(46.4, 43.7, 0)), False)
sketch2.addGeometry(Part.LineSegment(App.Vector(46.4, 43.7, 0), App.Vector(46.4, 53.7, 0)), False)
sketch2.addGeometry(Part.LineSegment(App.Vector(46.4, 53.7, 0), App.Vector(49.4, 53.7, 0)), False)
sketch2.addGeometry(Part.LineSegment(App.Vector(49.4, 53.7, 0), App.Vector(49.4, 60.7, 0)), False)
sketch2.addGeometry(Part.LineSegment(App.Vector(49.4, 60.7, 0), App.Vector(42.4, 60.7, 0)), False)
sketch2.addGeometry(Part.LineSegment(App.Vector(42.4, 60.7, 0), App.Vector(42.4, 63.7, 0)), False)
sketch2.addGeometry(Part.LineSegment(App.Vector(42.4, 63.7, 0), App.Vector(32.4, 63.7, 0)), False)
sketch2.addGeometry(Part.LineSegment(App.Vector(32.4, 63.7, 0), App.Vector(32.4, 60.7, 0)), False)
sketch2.addGeometry(Part.LineSegment(App.Vector(32.4, 60.7, 0), App.Vector(25.4, 60.7, 0)), False)
sketch2.addGeometry(Part.LineSegment(App.Vector(25.4, 60.7, 0), App.Vector(25.4, 63.7, 0)), False)
sketch2.addGeometry(Part.LineSegment(App.Vector(25.4, 63.7, 0), App.Vector(15.4, 63.7, 0)), False)
sketch2.addGeometry(Part.LineSegment(App.Vector(15.4, 63.7, 0), App.Vector(15.4, 60.7, 0)), False)
sketch2.addGeometry(Part.LineSegment(App.Vector(15.4, 60.7, 0), App.Vector(8.4, 60.7, 0)), False)
sketch2.addGeometry(Part.LineSegment(App.Vector(8.4, 60.7, 0), App.Vector(8.4, 53.7, 0)), False)
sketch2.addGeometry(Part.LineSegment(App.Vector(8.4, 53.7, 0), App.Vector(11.4, 53.7, 0)), False)
sketch2.addGeometry(Part.LineSegment(App.Vector(11.4, 53.7, 0), App.Vector(11.4, 43.7, 0)), False)
sketch2.addGeometry(Part.LineSegment(App.Vector(11.4, 43.7, 0), App.Vector(8.4, 43.7, 0)), False)
sketch2.addGeometry(Part.LineSegment(App.Vector(8.4, 43.7, 0), App.Vector(8.4, 36.7, 0)), False)
sketch2.addGeometry(Part.LineSegment(App.Vector(8.4, 36.7, 0), App.Vector(11.4, 36.7, 0)), False)
sketch2.addGeometry(Part.LineSegment(App.Vector(11.4, 36.7, 0), App.Vector(11.4, 26.7, 0)), False)
sketch2.addGeometry(Part.LineSegment(App.Vector(11.4, 26.7, 0), App.Vector(8.4, 26.7, 0)), False)
sketch2.addGeometry(Part.LineSegment(App.Vector(8.4, 26.7, 0), App.Vector(8.4, 19.7, 0)), False)
sketch2.addGeometry(Part.LineSegment(App.Vector(8.4, 19.7, 0), App.Vector(15.4, 19.7, 0)), False)
sketch2.addGeometry(Part.LineSegment(App.Vector(15.4, 19.7, 0), App.Vector(15.4, 16.7, 0)), False)
sketch2.addGeometry(Part.LineSegment(App.Vector(15.4, 16.7, 0), App.Vector(25.4, 16.7, 0)), False)
sketch2.addGeometry(Part.LineSegment(App.Vector(25.4, 16.7, 0), App.Vector(25.4, 19.7, 0)), False)
sketch2.addGeometry(Part.LineSegment(App.Vector(25.4, 19.7, 0), App.Vector(32.4, 19.7, 0)), False)
sketch2.addGeometry(Part.LineSegment(App.Vector(32.4, 19.7, 0), App.Vector(32.4, 16.7, 0)), False)
sketch2.addGeometry(Part.LineSegment(App.Vector(32.4, 16.7, 0), App.Vector(42.4, 16.7, 0)), False)
sketch2.addGeometry(Part.LineSegment(App.Vector(42.4, 16.7, 0), App.Vector(42.4, 19.7, 0)), False)
sketch2.addConstraint(Sketcher.Constraint("Coincident", 0, 2, 1, 1))
sketch2.addConstraint(Sketcher.Constraint("Coincident", 1, 2, 2, 1))
sketch2.addConstraint(Sketcher.Constraint("Coincident", 2, 2, 3, 1))
sketch2.addConstraint(Sketcher.Constraint("Coincident", 3, 2, 4, 1))
sketch2.addConstraint(Sketcher.Constraint("Coincident", 4, 2, 5, 1))
sketch2.addConstraint(Sketcher.Constraint("Coincident", 5, 2, 6, 1))
sketch2.addConstraint(Sketcher.Constraint("Coincident", 6, 2, 7, 1))
sketch2.addConstraint(Sketcher.Constraint("Coincident", 7, 2, 8, 1))
sketch2.addConstraint(Sketcher.Constraint("Coincident", 8, 2, 9, 1))
sketch2.addConstraint(Sketcher.Constraint("Coincident", 9, 2, 10, 1))
sketch2.addConstraint(Sketcher.Constraint("Coincident", 10, 2, 11, 1))
sketch2.addConstraint(Sketcher.Constraint("Coincident", 11, 2, 12, 1))
sketch2.addConstraint(Sketcher.Constraint("Coincident", 12, 2, 13, 1))
sketch2.addConstraint(Sketcher.Constraint("Coincident", 13, 2, 14, 1))
sketch2.addConstraint(Sketcher.Constraint("Coincident", 14, 2, 15, 1))
sketch2.addConstraint(Sketcher.Constraint("Coincident", 15, 2, 16, 1))
sketch2.addConstraint(Sketcher.Constraint("Coincident", 16, 2, 17, 1))
sketch2.addConstraint(Sketcher.Constraint("Coincident", 17, 2, 18, 1))
sketch2.addConstraint(Sketcher.Constraint("Coincident", 18, 2, 19, 1))
sketch2.addConstraint(Sketcher.Constraint("Coincident", 19, 2, 20, 1))
sketch2.addConstraint(Sketcher.Constraint("Coincident", 20, 2, 21, 1))
sketch2.addConstraint(Sketcher.Constraint("Coincident", 21, 2, 22, 1))
sketch2.addConstraint(Sketcher.Constraint("Coincident", 22, 2, 23, 1))
sketch2.addConstraint(Sketcher.Constraint("Coincident", 23, 2, 24, 1))
sketch2.addConstraint(Sketcher.Constraint("Coincident", 24, 2, 25, 1))
sketch2.addConstraint(Sketcher.Constraint("Coincident", 25, 2, 26, 1))
sketch2.addConstraint(Sketcher.Constraint("Coincident", 26, 2, 27, 1))
sketch2.addConstraint(Sketcher.Constraint("Coincident", 27, 2, 28, 1))
sketch2.addConstraint(Sketcher.Constraint("Coincident", 28, 2, 29, 1))
sketch2.addConstraint(Sketcher.Constraint("Coincident", 29, 2, 30, 1))
sketch2.addConstraint(Sketcher.Constraint("Coincident", 30, 2, 31, 1))
sketch2.addConstraint(Sketcher.Constraint("Coincident", 31, 2, 32, 1))
sketch2.addConstraint(Sketcher.Constraint("Coincident", 32, 2, 33, 1))
sketch2.addConstraint(Sketcher.Constraint("Coincident", 33, 2, 34, 1))
sketch2.addConstraint(Sketcher.Constraint("Coincident", 34, 2, 35, 1))
sketch2.addConstraint(Sketcher.Constraint("Coincident", 35, 2, 0, 1))
sketch2.addConstraint(Sketcher.Constraint("Horizontal", 0))
sketch2.addConstraint(Sketcher.Constraint("Vertical", 1))
sketch2.addConstraint(Sketcher.Constraint("Horizontal", 2))
sketch2.addConstraint(Sketcher.Constraint("Vertical", 3))
sketch2.addConstraint(Sketcher.Constraint("Horizontal", 4))
sketch2.addConstraint(Sketcher.Constraint("Vertical", 5))
sketch2.addConstraint(Sketcher.Constraint("Horizontal", 6))
sketch2.addConstraint(Sketcher.Constraint("Vertical", 7))
sketch2.addConstraint(Sketcher.Constraint("Horizontal", 8))
sketch2.addConstraint(Sketcher.Constraint("Vertical", 9))
sketch2.addConstraint(Sketcher.Constraint("Horizontal", 10))
sketch2.addConstraint(Sketcher.Constraint("Vertical", 11))
sketch2.addConstraint(Sketcher.Constraint("Horizontal", 12))
sketch2.addConstraint(Sketcher.Constraint("Vertical", 13))
sketch2.addConstraint(Sketcher.Constraint("Horizontal", 14))
sketch2.addConstraint(Sketcher.Constraint("Vertical", 15))
sketch2.addConstraint(Sketcher.Constraint("Horizontal", 16))
sketch2.addConstraint(Sketcher.Constraint("Vertical", 17))
sketch2.addConstraint(Sketcher.Constraint("Horizontal", 18))
sketch2.addConstraint(Sketcher.Constraint("Vertical", 19))
sketch2.addConstraint(Sketcher.Constraint("Horizontal", 20))
sketch2.addConstraint(Sketcher.Constraint("Vertical", 21))
sketch2.addConstraint(Sketcher.Constraint("Horizontal", 22))
sketch2.addConstraint(Sketcher.Constraint("Vertical", 23))
sketch2.addConstraint(Sketcher.Constraint("Horizontal", 24))
sketch2.addConstraint(Sketcher.Constraint("Vertical", 25))
sketch2.addConstraint(Sketcher.Constraint("Horizontal", 26))
sketch2.addConstraint(Sketcher.Constraint("Vertical", 27))
sketch2.addConstraint(Sketcher.Constraint("Horizontal", 28))
sketch2.addConstraint(Sketcher.Constraint("Vertical", 29))
sketch2.addConstraint(Sketcher.Constraint("Horizontal", 30))
sketch2.addConstraint(Sketcher.Constraint("Vertical", 31))
sketch2.addConstraint(Sketcher.Constraint("Horizontal", 32))
sketch2.addConstraint(Sketcher.Constraint("Vertical", 33))
sketch2.addConstraint(Sketcher.Constraint("Horizontal", 34))
sketch2.addConstraint(Sketcher.Constraint("Vertical", 35))
sketch2.addConstraint(Sketcher.Constraint("Horizontal", 10, 2, 13, 2))
sketch2.addConstraint(Sketcher.Constraint("Horizontal", 12, 2, 15, 2))
sketch2.addConstraint(Sketcher.Constraint("Horizontal", 14, 2, 17, 2))
sketch2.addConstraint(Sketcher.Constraint("Horizontal", 8, 2, 19, 2))
sketch2.addConstraint(Sketcher.Constraint("Horizontal", 6, 2, 21, 2))
sketch2.addConstraint(Sketcher.Constraint("Horizontal", 4, 2, 23, 2))
sketch2.addConstraint(Sketcher.Constraint("Horizontal", 2, 2, 25, 2))
sketch2.addConstraint(Sketcher.Constraint("Horizontal", 0, 2, 27, 2))
sketch2.addConstraint(Sketcher.Constraint("Horizontal", 28, 2, 31, 2))
sketch2.addConstraint(Sketcher.Constraint("Horizontal", 30, 2, 33, 2))
sketch2.addConstraint(Sketcher.Constraint("Vertical", 1, 2, 4, 2))
sketch2.addConstraint(Sketcher.Constraint("Vertical", 3, 2, 6, 2))
sketch2.addConstraint(Sketcher.Constraint("Vertical", 5, 2, 8, 2))
sketch2.addConstraint(Sketcher.Constraint("Vertical", 19, 2, 22, 2))
sketch2.addConstraint(Sketcher.Constraint("Vertical", 21, 2, 24, 2))
sketch2.addConstraint(Sketcher.Constraint("Vertical", 23, 2, 26, 2))
sketch2.addConstraint(Sketcher.Constraint("Vertical", 17, 2, 28, 2))
sketch2.addConstraint(Sketcher.Constraint("Vertical", 15, 2, 30, 2))
sketch2.addConstraint(Sketcher.Constraint("Vertical", 13, 2, 32, 2))
sketch2.addConstraint(Sketcher.Constraint("Vertical", 11, 2, 34, 2))
sketch2.addConstraint(Sketcher.Constraint("Equal", 10, 14))
sketch2.addConstraint(Sketcher.Constraint("Equal", 12, 16))
sketch2.addConstraint(Sketcher.Constraint("Equal", 14, 18))
sketch2.addConstraint(Sketcher.Constraint("Equal", 8, 20))
sketch2.addConstraint(Sketcher.Constraint("Equal", 32, 1))
sketch2.addConstraint(Sketcher.Constraint("Equal", 34, 3))
sketch2.addConstraint(Sketcher.Constraint("Equal", 1, 5))
sketch2.addConstraint(Sketcher.Constraint("Equal", 3, 7))
sketch2.addConstraint(Sketcher.Constraint("Equal", 5, 9))
sketch2.addConstraint(Sketcher.Constraint("Equal", 26, 11))
sketch2.addConstraint(Sketcher.Constraint("Equal", 17, 29))
sketch2.addConstraint(Sketcher.Constraint("DistanceX", 0, 1, 0, 2, Q("7 mm")))
sketch2.addConstraint(Sketcher.Constraint("DistanceX", 2, 2, 2, 1, Q("3 mm")))
sketch2.addConstraint(Sketcher.Constraint("DistanceX", 12, 2, 12, 1, Q("10 mm")))
sketch2.addConstraint(Sketcher.Constraint("DistanceX", -1, 1, 0, 2, Q("49.379946 mm")))
sketch2.addConstraint(Sketcher.Constraint("DistanceY", -1, 1, 0, 2, Q("19.652456 mm")))
sketch2.setExpression("Constraints[103]", "Params.sketch2_width")
sketch2.setExpression("Constraints[104]", "Params.sketch2_width2")
sketch2.setExpression("Constraints[105]", "Params.sketch2_width3")
pad2 = body2.newObject("PartDesign::Pad", "Pad001")
pad2.Profile = sketch2
pad2.setExpression("Length", "Params.pad2_length")

doc.recompute()
